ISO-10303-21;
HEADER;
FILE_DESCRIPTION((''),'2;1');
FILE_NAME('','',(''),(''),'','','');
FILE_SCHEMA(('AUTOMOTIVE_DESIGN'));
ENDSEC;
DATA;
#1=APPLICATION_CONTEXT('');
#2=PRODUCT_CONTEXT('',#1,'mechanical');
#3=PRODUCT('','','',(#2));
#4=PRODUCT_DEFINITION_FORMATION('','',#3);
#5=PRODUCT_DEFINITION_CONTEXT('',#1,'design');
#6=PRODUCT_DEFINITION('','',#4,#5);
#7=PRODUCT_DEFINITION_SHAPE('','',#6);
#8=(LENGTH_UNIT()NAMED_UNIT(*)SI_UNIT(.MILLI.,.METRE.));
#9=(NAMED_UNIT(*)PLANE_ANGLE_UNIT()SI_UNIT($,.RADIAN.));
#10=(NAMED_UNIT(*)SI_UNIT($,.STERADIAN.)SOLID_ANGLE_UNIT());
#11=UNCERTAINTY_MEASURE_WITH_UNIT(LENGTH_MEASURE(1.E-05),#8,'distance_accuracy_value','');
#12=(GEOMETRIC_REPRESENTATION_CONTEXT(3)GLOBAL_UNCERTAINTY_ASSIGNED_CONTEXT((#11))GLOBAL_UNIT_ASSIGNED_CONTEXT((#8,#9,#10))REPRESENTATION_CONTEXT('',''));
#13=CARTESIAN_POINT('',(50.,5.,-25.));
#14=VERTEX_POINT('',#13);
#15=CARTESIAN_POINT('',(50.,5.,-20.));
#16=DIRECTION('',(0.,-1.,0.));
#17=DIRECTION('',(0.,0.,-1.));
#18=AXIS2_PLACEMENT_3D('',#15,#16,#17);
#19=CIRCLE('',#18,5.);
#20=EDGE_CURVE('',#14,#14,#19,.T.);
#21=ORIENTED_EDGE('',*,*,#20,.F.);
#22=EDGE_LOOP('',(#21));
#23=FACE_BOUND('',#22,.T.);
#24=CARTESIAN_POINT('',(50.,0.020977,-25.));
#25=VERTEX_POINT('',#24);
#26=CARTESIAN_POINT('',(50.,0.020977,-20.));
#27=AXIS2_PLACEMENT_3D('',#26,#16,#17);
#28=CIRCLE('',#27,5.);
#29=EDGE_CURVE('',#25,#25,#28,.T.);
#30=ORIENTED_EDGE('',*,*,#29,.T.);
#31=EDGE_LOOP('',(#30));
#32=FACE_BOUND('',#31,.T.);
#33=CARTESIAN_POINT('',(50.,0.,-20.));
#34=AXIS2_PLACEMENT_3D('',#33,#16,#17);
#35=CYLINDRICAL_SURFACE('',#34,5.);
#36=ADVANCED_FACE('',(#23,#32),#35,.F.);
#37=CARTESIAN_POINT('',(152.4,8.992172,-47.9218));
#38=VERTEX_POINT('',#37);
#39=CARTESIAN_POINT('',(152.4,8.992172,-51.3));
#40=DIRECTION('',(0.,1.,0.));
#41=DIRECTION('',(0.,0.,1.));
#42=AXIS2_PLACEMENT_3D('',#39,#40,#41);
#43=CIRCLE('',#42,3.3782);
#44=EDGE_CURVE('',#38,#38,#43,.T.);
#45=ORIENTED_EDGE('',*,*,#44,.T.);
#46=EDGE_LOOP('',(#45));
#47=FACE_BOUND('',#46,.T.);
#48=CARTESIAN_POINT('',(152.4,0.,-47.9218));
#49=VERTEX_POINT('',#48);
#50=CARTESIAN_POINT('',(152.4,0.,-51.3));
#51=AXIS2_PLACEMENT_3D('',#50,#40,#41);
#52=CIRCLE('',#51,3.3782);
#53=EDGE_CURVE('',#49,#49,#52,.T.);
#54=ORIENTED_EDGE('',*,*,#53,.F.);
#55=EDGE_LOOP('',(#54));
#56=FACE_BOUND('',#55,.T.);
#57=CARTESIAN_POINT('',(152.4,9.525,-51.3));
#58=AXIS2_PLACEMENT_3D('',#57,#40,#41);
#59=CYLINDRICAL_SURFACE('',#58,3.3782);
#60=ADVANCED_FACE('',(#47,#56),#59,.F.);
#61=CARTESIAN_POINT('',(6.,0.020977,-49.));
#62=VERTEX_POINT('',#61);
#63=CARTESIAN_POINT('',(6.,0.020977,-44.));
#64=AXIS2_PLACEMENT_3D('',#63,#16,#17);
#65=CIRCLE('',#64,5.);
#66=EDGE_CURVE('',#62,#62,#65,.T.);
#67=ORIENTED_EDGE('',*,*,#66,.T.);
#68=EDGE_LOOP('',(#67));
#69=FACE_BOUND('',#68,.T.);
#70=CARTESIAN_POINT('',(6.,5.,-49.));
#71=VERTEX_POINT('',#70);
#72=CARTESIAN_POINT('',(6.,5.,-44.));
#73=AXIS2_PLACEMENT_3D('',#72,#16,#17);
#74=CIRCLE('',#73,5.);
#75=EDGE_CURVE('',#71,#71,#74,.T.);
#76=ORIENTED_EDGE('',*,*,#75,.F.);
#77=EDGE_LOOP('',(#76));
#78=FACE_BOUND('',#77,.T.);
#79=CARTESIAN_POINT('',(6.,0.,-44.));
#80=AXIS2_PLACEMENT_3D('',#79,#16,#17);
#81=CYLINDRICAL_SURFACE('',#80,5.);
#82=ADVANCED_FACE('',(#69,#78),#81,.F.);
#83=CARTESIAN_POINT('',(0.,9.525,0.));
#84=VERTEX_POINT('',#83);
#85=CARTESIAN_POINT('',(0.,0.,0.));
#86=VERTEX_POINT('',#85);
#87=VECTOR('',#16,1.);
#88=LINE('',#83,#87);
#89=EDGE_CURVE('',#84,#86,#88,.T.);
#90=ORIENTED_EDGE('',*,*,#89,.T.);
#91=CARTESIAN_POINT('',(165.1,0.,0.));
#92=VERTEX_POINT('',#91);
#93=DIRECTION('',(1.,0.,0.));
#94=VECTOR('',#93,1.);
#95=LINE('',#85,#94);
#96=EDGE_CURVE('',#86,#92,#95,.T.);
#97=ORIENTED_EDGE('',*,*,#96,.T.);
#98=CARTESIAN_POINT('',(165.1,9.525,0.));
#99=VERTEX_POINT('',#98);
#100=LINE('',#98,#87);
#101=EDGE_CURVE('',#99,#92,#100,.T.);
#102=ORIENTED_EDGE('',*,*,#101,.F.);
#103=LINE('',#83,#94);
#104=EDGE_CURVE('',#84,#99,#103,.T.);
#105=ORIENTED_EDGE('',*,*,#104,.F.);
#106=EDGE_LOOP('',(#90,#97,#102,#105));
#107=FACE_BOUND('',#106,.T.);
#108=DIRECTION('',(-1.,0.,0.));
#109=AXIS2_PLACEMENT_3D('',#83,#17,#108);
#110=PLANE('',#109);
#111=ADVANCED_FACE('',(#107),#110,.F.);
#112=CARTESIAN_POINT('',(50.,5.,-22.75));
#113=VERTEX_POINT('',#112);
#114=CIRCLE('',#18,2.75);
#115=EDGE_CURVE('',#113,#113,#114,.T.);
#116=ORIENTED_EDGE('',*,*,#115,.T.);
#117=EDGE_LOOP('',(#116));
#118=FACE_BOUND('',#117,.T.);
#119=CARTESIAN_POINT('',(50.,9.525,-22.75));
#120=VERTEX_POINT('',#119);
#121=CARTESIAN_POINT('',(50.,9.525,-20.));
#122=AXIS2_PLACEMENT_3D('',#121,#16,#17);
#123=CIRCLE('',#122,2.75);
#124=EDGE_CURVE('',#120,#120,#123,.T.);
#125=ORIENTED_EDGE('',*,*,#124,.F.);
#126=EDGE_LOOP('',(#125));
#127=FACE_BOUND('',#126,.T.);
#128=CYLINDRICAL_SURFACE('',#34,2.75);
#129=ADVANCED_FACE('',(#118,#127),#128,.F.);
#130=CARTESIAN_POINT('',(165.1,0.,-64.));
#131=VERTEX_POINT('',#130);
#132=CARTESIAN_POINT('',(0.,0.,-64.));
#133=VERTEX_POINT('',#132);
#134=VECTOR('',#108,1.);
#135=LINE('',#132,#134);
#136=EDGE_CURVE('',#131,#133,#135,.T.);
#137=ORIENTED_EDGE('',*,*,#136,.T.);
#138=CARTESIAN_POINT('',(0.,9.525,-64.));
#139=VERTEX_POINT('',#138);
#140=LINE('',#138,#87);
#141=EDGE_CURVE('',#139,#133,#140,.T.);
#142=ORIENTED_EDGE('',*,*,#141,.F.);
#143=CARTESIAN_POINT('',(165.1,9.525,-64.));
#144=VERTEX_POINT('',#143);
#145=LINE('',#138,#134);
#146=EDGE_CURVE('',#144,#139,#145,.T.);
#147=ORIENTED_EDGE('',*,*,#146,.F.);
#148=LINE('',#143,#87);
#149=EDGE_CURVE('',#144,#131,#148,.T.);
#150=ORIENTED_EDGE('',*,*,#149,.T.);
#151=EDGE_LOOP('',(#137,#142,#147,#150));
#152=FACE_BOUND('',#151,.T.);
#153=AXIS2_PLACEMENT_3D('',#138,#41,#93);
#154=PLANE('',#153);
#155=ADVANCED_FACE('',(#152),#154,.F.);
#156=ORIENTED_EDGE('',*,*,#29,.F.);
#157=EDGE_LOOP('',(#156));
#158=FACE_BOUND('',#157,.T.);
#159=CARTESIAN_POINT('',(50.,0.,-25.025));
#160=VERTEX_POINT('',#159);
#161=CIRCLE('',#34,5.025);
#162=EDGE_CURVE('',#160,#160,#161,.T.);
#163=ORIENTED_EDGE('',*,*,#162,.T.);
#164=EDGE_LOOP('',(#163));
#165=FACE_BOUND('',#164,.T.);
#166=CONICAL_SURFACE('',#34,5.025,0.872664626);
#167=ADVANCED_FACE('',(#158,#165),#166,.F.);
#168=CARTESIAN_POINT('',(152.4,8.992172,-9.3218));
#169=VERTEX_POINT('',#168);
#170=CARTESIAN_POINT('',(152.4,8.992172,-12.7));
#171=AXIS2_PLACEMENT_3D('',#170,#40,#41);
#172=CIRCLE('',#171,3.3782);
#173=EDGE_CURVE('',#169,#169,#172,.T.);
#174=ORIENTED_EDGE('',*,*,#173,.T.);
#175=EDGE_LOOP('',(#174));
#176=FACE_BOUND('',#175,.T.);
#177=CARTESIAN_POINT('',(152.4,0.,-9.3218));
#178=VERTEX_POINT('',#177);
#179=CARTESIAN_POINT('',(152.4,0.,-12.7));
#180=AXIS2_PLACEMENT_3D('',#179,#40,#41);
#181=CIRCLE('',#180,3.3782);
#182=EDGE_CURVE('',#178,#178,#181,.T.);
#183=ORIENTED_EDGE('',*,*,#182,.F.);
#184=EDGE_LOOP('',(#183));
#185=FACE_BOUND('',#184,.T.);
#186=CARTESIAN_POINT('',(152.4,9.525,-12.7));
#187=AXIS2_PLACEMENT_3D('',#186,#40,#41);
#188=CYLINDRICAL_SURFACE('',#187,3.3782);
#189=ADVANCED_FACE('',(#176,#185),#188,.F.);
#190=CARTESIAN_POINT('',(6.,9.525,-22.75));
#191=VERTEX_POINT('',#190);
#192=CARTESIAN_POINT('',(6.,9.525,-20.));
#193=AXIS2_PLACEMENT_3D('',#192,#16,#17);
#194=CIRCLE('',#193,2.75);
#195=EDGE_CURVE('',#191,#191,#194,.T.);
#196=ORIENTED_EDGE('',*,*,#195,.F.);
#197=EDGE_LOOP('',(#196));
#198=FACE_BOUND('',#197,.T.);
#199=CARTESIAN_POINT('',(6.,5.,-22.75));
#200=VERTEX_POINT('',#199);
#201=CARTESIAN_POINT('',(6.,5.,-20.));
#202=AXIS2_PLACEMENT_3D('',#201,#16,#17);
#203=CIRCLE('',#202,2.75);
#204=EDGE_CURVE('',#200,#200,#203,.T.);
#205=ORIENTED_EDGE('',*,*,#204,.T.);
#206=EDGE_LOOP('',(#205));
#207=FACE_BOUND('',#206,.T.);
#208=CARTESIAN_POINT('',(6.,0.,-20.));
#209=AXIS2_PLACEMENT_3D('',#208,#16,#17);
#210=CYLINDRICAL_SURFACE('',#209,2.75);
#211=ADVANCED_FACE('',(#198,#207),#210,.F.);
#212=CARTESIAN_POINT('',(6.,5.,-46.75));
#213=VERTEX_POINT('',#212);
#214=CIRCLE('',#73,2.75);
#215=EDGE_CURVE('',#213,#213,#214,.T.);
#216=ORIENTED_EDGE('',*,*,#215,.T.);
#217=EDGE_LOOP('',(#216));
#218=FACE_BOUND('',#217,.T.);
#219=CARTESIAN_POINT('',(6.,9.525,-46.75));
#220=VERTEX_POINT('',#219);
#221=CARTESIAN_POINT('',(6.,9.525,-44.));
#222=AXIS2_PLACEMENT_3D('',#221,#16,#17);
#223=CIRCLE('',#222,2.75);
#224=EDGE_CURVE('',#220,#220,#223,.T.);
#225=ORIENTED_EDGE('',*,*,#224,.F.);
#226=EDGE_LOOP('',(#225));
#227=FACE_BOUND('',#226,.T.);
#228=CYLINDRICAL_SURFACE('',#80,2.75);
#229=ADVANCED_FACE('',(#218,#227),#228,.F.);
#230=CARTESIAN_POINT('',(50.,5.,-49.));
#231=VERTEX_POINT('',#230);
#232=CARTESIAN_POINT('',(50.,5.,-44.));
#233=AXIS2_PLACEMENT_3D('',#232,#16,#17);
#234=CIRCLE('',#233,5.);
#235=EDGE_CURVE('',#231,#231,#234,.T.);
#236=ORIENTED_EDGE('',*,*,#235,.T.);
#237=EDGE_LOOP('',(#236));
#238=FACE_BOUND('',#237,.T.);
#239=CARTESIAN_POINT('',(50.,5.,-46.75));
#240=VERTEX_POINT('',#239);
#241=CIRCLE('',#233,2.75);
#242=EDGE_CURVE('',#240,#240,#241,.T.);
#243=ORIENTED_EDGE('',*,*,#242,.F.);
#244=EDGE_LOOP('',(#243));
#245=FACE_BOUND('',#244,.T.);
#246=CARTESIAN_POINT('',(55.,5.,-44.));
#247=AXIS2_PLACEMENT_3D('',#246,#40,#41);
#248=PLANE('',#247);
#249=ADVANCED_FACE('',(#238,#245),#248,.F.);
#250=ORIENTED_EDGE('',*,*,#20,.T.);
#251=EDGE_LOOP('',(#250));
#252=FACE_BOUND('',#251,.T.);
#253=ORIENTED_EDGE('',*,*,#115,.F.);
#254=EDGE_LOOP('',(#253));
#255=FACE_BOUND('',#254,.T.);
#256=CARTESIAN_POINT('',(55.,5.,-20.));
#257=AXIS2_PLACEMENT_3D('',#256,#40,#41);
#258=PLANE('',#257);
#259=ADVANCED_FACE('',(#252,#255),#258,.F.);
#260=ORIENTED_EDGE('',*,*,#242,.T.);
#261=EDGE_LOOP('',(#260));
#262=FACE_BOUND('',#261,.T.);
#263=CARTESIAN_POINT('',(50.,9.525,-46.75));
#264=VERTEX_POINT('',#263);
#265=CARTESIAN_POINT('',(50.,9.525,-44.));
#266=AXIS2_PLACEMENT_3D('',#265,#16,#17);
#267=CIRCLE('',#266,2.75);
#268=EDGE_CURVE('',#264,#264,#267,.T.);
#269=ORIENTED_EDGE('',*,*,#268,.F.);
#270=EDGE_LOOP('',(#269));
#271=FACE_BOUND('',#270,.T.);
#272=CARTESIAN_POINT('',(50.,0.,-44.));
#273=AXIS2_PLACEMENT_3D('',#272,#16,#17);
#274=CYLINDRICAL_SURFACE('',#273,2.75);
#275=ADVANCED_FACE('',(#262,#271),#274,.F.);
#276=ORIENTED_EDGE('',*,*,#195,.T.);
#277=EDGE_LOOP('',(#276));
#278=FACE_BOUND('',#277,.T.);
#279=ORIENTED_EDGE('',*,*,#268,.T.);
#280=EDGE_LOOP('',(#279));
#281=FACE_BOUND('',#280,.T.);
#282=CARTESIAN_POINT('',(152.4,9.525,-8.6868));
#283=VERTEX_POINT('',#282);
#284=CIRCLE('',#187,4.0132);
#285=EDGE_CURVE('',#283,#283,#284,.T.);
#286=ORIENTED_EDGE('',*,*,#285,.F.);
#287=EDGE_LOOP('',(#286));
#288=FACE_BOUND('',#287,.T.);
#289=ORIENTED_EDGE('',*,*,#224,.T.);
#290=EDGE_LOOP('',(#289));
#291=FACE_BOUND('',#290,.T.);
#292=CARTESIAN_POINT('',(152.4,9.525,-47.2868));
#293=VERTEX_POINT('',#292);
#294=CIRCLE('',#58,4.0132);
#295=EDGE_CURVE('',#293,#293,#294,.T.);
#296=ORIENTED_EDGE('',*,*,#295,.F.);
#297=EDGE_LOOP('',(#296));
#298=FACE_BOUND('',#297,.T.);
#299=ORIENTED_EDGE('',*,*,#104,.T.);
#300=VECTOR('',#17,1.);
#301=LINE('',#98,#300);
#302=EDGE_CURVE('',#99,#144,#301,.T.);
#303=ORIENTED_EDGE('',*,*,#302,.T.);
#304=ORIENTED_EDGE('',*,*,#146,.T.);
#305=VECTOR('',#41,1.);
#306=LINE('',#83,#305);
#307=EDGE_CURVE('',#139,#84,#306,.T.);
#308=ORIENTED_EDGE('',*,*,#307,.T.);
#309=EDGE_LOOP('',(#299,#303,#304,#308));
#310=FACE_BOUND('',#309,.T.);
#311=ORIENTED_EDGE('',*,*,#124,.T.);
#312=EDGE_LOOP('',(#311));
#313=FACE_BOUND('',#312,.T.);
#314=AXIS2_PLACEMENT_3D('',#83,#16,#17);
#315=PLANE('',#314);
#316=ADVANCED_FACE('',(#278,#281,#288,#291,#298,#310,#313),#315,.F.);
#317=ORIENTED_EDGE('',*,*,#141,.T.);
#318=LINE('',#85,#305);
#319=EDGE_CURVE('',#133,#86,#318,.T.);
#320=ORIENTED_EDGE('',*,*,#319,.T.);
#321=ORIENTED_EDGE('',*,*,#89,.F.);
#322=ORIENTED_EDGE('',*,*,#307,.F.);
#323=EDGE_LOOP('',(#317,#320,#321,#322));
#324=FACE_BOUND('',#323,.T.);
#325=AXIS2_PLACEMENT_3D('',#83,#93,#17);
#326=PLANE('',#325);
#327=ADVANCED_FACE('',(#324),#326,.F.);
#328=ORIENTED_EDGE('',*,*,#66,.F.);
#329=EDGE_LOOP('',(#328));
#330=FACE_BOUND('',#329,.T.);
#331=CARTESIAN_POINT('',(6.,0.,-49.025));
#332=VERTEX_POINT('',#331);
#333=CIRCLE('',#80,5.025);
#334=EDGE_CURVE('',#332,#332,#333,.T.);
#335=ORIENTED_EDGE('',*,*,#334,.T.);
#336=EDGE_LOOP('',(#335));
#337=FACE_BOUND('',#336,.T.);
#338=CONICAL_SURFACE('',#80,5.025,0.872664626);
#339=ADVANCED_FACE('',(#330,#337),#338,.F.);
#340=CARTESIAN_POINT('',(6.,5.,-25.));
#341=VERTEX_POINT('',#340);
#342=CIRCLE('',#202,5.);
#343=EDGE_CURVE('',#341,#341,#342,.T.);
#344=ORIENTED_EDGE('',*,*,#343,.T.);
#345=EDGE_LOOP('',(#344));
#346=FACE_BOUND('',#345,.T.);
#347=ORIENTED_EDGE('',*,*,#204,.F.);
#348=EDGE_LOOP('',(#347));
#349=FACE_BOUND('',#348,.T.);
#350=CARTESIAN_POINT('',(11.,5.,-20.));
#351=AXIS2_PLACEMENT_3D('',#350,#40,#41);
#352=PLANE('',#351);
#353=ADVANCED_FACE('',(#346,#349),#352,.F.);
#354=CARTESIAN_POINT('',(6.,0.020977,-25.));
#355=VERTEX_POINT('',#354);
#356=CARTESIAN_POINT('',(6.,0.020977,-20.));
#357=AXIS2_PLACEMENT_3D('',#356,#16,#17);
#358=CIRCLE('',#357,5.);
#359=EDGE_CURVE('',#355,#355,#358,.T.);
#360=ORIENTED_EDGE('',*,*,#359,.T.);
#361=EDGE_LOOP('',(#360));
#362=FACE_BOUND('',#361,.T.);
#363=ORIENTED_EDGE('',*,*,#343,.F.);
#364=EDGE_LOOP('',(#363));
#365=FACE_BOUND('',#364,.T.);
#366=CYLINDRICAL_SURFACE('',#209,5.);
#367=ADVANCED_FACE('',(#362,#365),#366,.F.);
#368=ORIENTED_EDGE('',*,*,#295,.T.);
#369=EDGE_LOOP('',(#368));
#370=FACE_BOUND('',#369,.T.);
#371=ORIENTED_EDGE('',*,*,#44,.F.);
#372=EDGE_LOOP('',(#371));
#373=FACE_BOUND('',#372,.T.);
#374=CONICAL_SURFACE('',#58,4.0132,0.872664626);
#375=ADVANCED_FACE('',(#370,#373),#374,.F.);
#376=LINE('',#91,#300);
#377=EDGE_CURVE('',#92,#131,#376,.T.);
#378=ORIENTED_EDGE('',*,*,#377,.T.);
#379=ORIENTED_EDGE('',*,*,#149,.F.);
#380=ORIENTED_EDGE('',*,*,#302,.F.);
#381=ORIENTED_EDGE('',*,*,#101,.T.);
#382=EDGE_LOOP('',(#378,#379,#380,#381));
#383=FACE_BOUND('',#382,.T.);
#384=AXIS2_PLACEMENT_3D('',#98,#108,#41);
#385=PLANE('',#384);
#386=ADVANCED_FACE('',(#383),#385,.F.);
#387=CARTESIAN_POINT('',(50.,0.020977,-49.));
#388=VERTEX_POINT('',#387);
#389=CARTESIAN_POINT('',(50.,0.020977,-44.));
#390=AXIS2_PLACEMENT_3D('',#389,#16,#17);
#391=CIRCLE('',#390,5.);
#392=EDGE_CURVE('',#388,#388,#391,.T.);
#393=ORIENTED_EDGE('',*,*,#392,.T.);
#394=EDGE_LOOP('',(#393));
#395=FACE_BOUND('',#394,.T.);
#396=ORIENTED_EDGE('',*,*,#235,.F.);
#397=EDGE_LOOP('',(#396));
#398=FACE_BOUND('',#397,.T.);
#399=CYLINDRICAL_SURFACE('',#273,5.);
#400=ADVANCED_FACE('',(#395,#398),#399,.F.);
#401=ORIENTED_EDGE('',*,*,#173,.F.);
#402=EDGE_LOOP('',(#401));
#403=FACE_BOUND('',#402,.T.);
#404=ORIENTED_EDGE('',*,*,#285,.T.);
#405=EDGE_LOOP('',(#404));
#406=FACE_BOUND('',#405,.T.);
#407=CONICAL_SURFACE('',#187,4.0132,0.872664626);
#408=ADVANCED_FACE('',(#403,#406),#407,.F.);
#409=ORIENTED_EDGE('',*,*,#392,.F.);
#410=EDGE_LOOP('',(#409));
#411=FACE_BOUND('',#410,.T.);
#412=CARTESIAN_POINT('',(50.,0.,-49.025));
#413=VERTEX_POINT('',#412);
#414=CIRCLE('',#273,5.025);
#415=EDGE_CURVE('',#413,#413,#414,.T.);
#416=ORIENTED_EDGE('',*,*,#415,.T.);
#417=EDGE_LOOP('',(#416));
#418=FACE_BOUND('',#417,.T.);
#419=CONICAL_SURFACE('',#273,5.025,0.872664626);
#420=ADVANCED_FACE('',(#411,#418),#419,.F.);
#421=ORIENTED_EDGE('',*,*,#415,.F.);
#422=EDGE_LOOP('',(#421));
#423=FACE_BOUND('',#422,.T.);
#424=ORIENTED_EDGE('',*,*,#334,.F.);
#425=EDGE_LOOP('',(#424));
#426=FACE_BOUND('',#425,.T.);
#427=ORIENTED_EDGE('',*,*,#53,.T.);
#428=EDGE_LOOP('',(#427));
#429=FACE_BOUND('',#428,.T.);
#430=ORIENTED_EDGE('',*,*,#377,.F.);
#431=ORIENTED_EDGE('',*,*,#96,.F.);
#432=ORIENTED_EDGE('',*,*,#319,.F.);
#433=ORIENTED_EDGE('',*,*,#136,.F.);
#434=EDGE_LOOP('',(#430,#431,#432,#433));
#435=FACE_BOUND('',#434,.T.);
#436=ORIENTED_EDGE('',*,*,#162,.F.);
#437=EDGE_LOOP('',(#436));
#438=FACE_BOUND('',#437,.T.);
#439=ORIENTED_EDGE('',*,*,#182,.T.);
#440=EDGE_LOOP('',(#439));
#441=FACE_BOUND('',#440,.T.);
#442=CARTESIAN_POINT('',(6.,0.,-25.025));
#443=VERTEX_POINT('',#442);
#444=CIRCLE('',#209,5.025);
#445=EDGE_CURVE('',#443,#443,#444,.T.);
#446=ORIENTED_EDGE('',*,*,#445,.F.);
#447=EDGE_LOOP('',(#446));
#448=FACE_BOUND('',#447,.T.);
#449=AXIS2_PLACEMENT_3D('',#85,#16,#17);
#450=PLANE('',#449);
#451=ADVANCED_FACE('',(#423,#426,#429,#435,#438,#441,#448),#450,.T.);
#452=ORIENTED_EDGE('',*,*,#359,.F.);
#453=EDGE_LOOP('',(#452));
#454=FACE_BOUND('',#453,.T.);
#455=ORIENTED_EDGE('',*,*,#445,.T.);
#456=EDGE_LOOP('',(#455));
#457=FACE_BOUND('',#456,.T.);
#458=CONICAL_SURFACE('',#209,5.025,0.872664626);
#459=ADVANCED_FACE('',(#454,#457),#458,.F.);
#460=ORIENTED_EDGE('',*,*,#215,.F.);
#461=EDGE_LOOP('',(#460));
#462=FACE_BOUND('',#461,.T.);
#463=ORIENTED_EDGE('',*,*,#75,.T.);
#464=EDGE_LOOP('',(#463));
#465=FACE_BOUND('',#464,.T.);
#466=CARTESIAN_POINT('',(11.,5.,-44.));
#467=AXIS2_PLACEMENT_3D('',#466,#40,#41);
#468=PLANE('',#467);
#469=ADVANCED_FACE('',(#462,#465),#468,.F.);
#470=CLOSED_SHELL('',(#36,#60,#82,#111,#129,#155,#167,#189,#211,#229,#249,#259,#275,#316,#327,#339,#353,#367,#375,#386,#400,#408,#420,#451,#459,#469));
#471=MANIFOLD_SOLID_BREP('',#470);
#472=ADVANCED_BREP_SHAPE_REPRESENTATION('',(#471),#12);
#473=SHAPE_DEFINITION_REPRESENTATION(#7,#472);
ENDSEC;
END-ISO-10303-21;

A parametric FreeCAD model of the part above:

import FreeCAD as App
import Part
import Sketcher
Q = App.Units.Quantity


def add_polygon(sketch, points):
    """Adds a closed chain of lines whose ends are joined by coincident constraints."""
    first, n = sketch.GeometryCount, len(points)
    for a, b in zip(points, points[1:] + points[:1]):
        sketch.addGeometry(Part.LineSegment(App.Vector(*a, 0), App.Vector(*b, 0)), False)
    for i in range(n):
        sketch.addConstraint(Sketcher.Constraint("Coincident", first + i, 2, first + (i + 1) % n, 1))

doc = App.newDocument("Part")
body = doc.addObject("PartDesign::Body", "Body")

sketch1 = body.newObject("Sketcher::SketchObject", "Sketch")
sketch1.AttachmentSupport = (doc.getObject("XZ_Plane"), [""])
sketch1.MapMode = "FlatFace"
add_polygon(sketch1, [(0, -64), (0, 0), (165, 0), (165, -64)])
sketch1.addConstraint([
    Sketcher.Constraint("Vertical", 0),
    Sketcher.Constraint("Horizontal", 1),
    Sketcher.Constraint("Vertical", 2),
    Sketcher.Constraint("Horizontal", 3),
    Sketcher.Constraint("Coincident", 0, 2, -1, 1),
    Sketcher.Constraint("DistanceX", 1, 1, 1, 2, Q("6.5 in")),
    Sketcher.Constraint("DistanceY", 0, 1, 0, 2, Q("64 mm")),
])
pad1 = body.newObject("PartDesign::Pad", "Pad")
pad1.Profile = sketch1
pad1.Length = Q("0.375 in")
pad1.Reversed = True

sketch2 = body.newObject("Sketcher::SketchObject", "Sketch001")
sketch2.AttachmentSupport = (doc.getObject("XZ_Plane"), [""])
sketch2.MapMode = "FlatFace"
sketch2.AttachmentOffset = App.Placement(App.Vector(0, 0, -0.375 * 25.4), App.Rotation())
sketch2.addGeometry([
    Part.Circle(App.Vector(152.4, -51.3, 0), App.Vector(0, 0, 1), 3.4),
    Part.Circle(App.Vector(152.4, -12.7, 0), App.Vector(0, 0, 1), 3.4),
], False)
sketch2.addConstraint([
    Sketcher.Constraint("Equal", 0, 1),
    Sketcher.Constraint("Vertical", 0, 3, 1, 3),
    Sketcher.Constraint("Diameter", 0, Q("0.266 in")),
    Sketcher.Constraint("DistanceX", -1, 1, 0, 3, Q("6 in")),
    Sketcher.Constraint("DistanceY", 1, 3, -1, 1, Q("0.5 in")),
    Sketcher.Constraint("DistanceY", 0, 3, -1, 1, Q("51.3 mm")),
])
doc.recompute()
hole = body.newObject("PartDesign::Hole", "Hole")
hole.Profile = sketch2
hole.ThreadType = "None"
hole.Diameter = Q("0.266 in")
hole.DepthType = "ThroughAll"
hole.HoleCutType = "Countersink"
hole.HoleCutDiameter = Q("0.316 in")
hole.HoleCutCountersinkAngle = 100
hole.Reversed = True

sketch3 = body.newObject("Sketcher::SketchObject", "Sketch002")
sketch3.AttachmentSupport = (doc.getObject("YZ_Plane"), [""])
sketch3.MapMode = "FlatFace"
sketch3.AttachmentOffset = App.Placement(App.Vector(0, 0, 6), App.Rotation())
add_polygon(sketch3, [(9.525, -44), (0, -44), (0, -49.025), (0.021, -49), (5, -49), (5, -46.75), (9.525, -46.75)])
sketch3.addGeometry(Part.LineSegment(App.Vector(0, -44, 0), App.Vector(9.525, -44, 0)), True)
sketch3.addConstraint([
    Sketcher.Constraint("Horizontal", 0),
    Sketcher.Constraint("Vertical", 1),
    Sketcher.Constraint("Horizontal", 3),
    Sketcher.Constraint("Vertical", 4),
    Sketcher.Constraint("Horizontal", 5),
    Sketcher.Constraint("Vertical", 6),
    Sketcher.Constraint("Horizontal", 7),
    Sketcher.Constraint("Coincident", 7, 1, 0, 2),
    Sketcher.Constraint("PointOnObject", 0, 2, -2),
    Sketcher.Constraint("Vertical", 5, 2, 7, 2),
    Sketcher.Constraint("Angle", 2, Q("50 deg")),
    Sketcher.Constraint("DistanceX", 0, 2, 0, 1, Q("0.375 in")),
    Sketcher.Constraint("DistanceX", 5, 1, 5, 2, Q("4.525 mm")),
    Sketcher.Constraint("DistanceY", 1, 2, 1, 1, Q("5.025 mm")),
    Sketcher.Constraint("DistanceY", 4, 1, 4, 2, Q("2.25 mm")),
    Sketcher.Constraint("DistanceY", 6, 1, 6, 2, Q("2.75 mm")),
    Sketcher.Constraint("DistanceY", 0, 2, -1, 1, Q("44 mm")),
])
groove = body.newObject("PartDesign::Groove", "Groove")
groove.Profile = sketch3
groove.ReferenceAxis = (sketch3, ["Axis0"])
groove.Angle = 360
doc.recompute()

linearpattern = body.newObject("PartDesign::LinearPattern", "LinearPattern")
linearpattern.Originals = [groove]
linearpattern.Direction = (doc.getObject("X_Axis"), [""])
linearpattern.Mode = "offset"
linearpattern.Offset = 44
linearpattern.Occurrences = 2
body.Tip = linearpattern
doc.recompute()

datumline = body.newObject("PartDesign::Line", "DatumLine")
datumline.Placement = App.Placement(App.Vector(0, 0, 0), App.Rotation(App.Vector(0, 0, 1), App.Vector(0.877895573, 0, 0.478852131)))
linearpattern2 = body.newObject("PartDesign::LinearPattern", "LinearPattern001")
linearpattern2.Originals = [groove]
linearpattern2.Direction = (datumline, [""])
linearpattern2.Mode = "offset"
linearpattern2.Offset = 50.119856
linearpattern2.Occurrences = 2
body.Tip = linearpattern2
doc.recompute()

linearpattern3 = body.newObject("PartDesign::LinearPattern", "LinearPattern002")
linearpattern3.Originals = [groove]
linearpattern3.Direction = (doc.getObject("Z_Axis"), [""])
linearpattern3.Mode = "offset"
linearpattern3.Offset = 24
linearpattern3.Occurrences = 2
body.Tip = linearpattern3

doc.recompute()
